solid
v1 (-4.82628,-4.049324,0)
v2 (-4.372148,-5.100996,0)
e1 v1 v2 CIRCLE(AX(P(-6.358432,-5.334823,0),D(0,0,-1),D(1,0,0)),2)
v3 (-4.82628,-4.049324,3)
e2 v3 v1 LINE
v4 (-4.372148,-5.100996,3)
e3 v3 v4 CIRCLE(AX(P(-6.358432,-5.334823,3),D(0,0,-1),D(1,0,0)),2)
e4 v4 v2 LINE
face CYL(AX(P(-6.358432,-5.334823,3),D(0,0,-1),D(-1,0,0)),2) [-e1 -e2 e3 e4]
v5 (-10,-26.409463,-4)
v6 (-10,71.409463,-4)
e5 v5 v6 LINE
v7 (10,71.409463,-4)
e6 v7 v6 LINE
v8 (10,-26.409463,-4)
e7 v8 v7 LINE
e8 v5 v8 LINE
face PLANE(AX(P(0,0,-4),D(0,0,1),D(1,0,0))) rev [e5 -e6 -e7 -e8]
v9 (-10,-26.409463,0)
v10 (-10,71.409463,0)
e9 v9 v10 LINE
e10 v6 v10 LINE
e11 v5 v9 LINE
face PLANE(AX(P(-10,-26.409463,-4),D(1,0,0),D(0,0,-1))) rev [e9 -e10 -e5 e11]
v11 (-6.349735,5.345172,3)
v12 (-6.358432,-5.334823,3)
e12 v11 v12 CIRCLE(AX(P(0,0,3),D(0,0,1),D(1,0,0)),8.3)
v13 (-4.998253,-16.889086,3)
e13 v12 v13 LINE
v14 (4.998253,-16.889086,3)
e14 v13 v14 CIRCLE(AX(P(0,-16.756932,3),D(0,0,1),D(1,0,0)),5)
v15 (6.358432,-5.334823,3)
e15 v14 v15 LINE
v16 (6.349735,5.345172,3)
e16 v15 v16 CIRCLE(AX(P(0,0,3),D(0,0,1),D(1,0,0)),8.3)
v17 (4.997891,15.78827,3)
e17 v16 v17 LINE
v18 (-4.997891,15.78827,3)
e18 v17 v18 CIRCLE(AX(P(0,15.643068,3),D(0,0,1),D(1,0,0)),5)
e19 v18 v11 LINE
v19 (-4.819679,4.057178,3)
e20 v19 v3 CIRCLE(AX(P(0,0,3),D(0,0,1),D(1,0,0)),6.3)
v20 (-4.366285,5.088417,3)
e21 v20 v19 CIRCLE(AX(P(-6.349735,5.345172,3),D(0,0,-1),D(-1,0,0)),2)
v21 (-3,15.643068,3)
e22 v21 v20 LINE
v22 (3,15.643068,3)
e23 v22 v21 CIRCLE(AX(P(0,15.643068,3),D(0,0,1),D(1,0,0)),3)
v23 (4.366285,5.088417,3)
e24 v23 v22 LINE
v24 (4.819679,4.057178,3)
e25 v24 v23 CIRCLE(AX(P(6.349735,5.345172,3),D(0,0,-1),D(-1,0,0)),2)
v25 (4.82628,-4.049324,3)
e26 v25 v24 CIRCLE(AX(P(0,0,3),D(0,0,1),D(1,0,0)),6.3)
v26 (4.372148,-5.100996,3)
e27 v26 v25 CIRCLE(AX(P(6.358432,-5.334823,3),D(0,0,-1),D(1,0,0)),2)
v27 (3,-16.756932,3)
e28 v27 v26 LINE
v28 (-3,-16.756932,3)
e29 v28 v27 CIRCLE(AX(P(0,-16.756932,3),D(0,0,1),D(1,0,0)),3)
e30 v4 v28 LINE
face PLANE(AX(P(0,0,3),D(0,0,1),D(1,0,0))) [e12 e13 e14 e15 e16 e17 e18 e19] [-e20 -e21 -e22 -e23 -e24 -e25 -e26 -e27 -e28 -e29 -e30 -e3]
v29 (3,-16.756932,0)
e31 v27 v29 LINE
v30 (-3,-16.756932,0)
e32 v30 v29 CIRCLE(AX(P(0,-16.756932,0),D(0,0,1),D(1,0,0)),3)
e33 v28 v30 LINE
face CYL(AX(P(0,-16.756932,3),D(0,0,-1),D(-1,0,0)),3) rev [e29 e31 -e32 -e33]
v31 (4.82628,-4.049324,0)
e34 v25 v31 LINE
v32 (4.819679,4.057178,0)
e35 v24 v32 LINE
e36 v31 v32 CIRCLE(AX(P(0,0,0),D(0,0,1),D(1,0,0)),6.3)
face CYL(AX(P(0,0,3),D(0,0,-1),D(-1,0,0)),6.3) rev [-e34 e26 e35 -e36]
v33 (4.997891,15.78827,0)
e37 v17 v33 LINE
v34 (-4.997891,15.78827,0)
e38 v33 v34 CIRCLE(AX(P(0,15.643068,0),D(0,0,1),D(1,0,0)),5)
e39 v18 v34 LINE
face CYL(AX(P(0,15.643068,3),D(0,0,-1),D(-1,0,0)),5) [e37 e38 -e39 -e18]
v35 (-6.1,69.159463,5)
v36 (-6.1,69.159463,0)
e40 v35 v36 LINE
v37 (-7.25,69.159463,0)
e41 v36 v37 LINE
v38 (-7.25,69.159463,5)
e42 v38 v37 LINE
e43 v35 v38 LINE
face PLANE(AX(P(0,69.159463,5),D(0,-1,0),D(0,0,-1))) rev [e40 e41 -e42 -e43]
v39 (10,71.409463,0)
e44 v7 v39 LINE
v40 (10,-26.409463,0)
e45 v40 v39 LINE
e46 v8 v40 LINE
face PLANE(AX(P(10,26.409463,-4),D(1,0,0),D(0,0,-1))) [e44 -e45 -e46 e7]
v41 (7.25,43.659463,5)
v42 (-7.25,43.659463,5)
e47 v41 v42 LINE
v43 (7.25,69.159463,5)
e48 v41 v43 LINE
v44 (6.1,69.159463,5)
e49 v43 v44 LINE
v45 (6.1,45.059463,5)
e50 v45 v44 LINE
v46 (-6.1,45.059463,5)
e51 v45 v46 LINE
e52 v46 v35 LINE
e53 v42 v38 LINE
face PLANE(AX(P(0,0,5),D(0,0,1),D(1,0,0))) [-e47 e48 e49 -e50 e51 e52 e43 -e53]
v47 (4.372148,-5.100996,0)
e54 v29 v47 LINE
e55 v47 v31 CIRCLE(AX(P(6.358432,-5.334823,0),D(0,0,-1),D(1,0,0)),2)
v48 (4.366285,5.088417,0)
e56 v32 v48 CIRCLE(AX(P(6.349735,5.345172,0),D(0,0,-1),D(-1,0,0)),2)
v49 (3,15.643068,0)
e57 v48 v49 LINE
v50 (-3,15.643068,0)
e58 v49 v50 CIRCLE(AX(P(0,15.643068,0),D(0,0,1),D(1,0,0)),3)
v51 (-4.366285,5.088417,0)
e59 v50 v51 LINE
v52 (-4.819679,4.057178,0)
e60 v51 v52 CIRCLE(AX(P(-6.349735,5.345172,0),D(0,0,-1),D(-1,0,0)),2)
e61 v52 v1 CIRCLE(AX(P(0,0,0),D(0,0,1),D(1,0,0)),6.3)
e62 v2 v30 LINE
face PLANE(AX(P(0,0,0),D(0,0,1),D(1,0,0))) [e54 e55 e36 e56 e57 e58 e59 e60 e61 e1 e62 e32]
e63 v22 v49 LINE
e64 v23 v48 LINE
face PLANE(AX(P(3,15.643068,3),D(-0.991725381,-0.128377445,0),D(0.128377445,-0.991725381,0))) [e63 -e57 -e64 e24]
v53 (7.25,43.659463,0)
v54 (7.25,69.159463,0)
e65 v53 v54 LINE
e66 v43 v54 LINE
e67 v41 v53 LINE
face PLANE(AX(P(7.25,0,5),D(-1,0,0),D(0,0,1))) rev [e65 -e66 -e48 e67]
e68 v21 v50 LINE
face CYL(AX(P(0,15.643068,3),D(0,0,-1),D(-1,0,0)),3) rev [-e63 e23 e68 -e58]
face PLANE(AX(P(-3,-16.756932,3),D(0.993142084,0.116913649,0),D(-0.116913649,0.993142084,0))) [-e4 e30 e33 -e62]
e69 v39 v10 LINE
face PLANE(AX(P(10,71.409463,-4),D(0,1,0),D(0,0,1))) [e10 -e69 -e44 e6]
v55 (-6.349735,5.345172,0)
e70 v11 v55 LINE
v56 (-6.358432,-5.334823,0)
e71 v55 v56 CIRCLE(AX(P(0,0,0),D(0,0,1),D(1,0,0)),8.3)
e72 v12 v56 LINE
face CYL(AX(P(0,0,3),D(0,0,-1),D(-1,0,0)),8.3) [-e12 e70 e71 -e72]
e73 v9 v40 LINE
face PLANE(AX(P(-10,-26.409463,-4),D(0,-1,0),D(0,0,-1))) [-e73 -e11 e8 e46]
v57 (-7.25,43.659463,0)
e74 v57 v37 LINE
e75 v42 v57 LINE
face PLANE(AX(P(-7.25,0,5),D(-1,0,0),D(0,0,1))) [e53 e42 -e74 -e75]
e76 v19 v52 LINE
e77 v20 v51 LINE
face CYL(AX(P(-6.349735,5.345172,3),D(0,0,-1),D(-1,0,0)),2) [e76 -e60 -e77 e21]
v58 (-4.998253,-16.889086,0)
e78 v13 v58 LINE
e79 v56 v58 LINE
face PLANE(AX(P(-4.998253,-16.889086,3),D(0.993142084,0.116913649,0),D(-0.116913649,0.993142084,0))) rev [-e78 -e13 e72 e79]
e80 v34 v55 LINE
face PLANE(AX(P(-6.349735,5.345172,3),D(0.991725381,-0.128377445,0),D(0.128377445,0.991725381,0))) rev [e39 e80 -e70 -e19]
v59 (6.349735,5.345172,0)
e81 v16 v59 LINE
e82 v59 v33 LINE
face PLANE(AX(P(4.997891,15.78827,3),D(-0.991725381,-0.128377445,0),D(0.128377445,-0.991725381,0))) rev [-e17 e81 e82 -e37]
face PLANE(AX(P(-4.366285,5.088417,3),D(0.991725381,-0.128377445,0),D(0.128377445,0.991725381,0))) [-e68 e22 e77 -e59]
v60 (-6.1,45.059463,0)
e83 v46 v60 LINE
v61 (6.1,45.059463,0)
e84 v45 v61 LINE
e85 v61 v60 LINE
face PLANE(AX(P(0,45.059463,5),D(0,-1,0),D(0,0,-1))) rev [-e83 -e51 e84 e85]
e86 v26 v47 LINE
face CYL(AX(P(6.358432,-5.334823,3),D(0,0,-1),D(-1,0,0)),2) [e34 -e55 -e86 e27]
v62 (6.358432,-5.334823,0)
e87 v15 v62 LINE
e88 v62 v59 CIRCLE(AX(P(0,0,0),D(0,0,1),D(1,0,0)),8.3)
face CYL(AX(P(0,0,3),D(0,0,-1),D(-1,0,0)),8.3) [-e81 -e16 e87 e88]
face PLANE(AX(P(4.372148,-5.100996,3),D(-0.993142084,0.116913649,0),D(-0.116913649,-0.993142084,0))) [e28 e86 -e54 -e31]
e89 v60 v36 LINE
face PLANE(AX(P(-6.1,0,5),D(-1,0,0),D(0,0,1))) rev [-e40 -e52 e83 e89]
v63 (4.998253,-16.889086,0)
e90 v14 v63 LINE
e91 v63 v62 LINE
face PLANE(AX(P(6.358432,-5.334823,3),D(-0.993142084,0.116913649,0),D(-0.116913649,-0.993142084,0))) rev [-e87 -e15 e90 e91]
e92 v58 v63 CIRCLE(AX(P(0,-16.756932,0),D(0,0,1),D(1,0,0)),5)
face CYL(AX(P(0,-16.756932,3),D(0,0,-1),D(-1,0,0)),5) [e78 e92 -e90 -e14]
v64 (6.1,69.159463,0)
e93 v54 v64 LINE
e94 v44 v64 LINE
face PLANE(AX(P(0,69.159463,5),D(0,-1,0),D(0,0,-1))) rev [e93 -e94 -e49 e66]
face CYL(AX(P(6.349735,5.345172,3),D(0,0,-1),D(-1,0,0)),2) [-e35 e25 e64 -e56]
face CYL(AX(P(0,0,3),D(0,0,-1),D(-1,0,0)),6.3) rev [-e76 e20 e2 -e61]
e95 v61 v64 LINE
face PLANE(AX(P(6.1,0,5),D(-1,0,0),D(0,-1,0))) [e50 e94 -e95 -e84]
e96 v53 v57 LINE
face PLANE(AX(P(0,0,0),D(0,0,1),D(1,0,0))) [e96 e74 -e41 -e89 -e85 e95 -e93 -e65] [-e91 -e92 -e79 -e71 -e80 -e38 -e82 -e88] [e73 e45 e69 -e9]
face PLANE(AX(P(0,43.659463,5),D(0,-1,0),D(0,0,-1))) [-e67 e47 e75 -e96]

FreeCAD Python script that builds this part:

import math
import FreeCAD as App
import Part
import Sketcher
from FreeCAD import Vector
Q = App.Units.Quantity

doc = App.newDocument("Part")
body = doc.addObject("PartDesign::Body", "Body")

# Sketch on XY plane
sketch1 = doc.addObject("Sketcher::SketchObject", "Sketch")
body.addObject(sketch1)
sketch1.AttachmentSupport = (doc.XY_Plane, [""])
sketch1.MapMode = "FlatFace"
sketch1.addGeometry([
    Part.LineSegment(Vector(-4.997891, 15.78827, 0), Vector(-6.349735, 5.345172, 0)),  # 0
    Part.ArcOfCircle(Part.Circle(Vector(0, 0, 0), Vector(0, 0, 1), 8.3), math.radians(139.909516), math.radians(219.997172)),  # 1
    Part.LineSegment(Vector(-6.358432, -5.334823, 0), Vector(-4.998253, -16.889086, 0)),  # 2
    Part.ArcOfCircle(Part.Circle(Vector(0, -16.756932, 0), Vector(0, 0, 1), 5), math.radians(-178.485448), math.radians(-1.514552)),  # 3
    Part.LineSegment(Vector(4.998253, -16.889086, 0), Vector(6.358432, -5.334823, 0)),  # 4
    Part.ArcOfCircle(Part.Circle(Vector(0, 0, 0), Vector(0, 0, 1), 8.3), math.radians(-39.997172), math.radians(40.090484)),  # 5
    Part.LineSegment(Vector(6.349735, 5.345172, 0), Vector(4.997891, 15.78827, 0)),  # 6
    Part.ArcOfCircle(Part.Circle(Vector(0, 15.643068, 0), Vector(0, 0, 1), 5), math.radians(1.664119), math.radians(178.335881)),  # 7
    Part.LineSegment(Vector(-4.366285, 5.088417, 0), Vector(-3, 15.643068, 0)),  # 8
    Part.ArcOfCircle(Part.Circle(Vector(0, 15.643068, 0), Vector(0, 0, 1), 3), math.radians(0), math.radians(180)),  # 9
    Part.LineSegment(Vector(3, 15.643068, 0), Vector(4.366285, 5.088417, 0)),  # 10
    Part.ArcOfCircle(Part.Circle(Vector(6.349735, 5.345172, 0), Vector(0, 0, 1), 2), math.radians(-172.624159), math.radians(-139.909516)),  # 11
    Part.ArcOfCircle(Part.Circle(Vector(0, 0, 0), Vector(0, 0, 1), 6.3), math.radians(-39.997172), math.radians(40.090484)),  # 12
    Part.ArcOfCircle(Part.Circle(Vector(6.358432, -5.334823, 0), Vector(0, 0, 1), 2), math.radians(140.002828), math.radians(173.285986)),  # 13
    Part.LineSegment(Vector(4.372148, -5.100996, 0), Vector(3, -16.756932, 0)),  # 14
    Part.ArcOfCircle(Part.Circle(Vector(0, -16.756932, 0), Vector(0, 0, 1), 3), math.radians(180), math.radians(360)),  # 15
    Part.LineSegment(Vector(-3, -16.756932, 0), Vector(-4.372148, -5.100996, 0)),  # 16
    Part.ArcOfCircle(Part.Circle(Vector(-6.358432, -5.334823, 0), Vector(0, 0, 1), 2), math.radians(6.714014), math.radians(39.997172)),  # 17
    Part.ArcOfCircle(Part.Circle(Vector(0, 0, 0), Vector(0, 0, 1), 6.3), math.radians(139.909516), math.radians(219.997172)),  # 18
    Part.ArcOfCircle(Part.Circle(Vector(-6.349735, 5.345172, 0), Vector(0, 0, 1), 2), math.radians(-40.090484), math.radians(-7.375841)),  # 19
], False)
sketch1.addConstraint([
    Sketcher.Constraint("Coincident", 0, 2, 1, 1),
    Sketcher.Constraint("Coincident", 1, 2, 2, 1),
    Sketcher.Constraint("Coincident", 2, 2, 3, 1),
    Sketcher.Constraint("Coincident", 3, 2, 4, 1),
    Sketcher.Constraint("Coincident", 4, 2, 5, 1),
    Sketcher.Constraint("Coincident", 5, 2, 6, 1),
    Sketcher.Constraint("Coincident", 6, 2, 7, 1),
    Sketcher.Constraint("Coincident", 7, 2, 0, 1),
    Sketcher.Constraint("Coincident", 8, 2, 9, 2),
    Sketcher.Constraint("Coincident", 9, 1, 10, 1),
    Sketcher.Constraint("Tangent", 10, 2, 11, 1),
    Sketcher.Constraint("Tangent", 11, 2, 12, 2),
    Sketcher.Constraint("Tangent", 12, 1, 13, 1),
    Sketcher.Constraint("Tangent", 13, 2, 14, 1),
    Sketcher.Constraint("Coincident", 14, 2, 15, 2),
    Sketcher.Constraint("Coincident", 15, 1, 16, 1),
    Sketcher.Constraint("Tangent", 16, 2, 17, 1),
    Sketcher.Constraint("Tangent", 17, 2, 18, 2),
    Sketcher.Constraint("Tangent", 18, 1, 19, 1),
    Sketcher.Constraint("Tangent", 19, 2, 8, 1),
    Sketcher.Constraint("Coincident", 1, 3, -1, 1),
    Sketcher.Constraint("Coincident", 5, 3, -1, 1),
    Sketcher.Constraint("Coincident", 12, 3, -1, 1),
    Sketcher.Constraint("Coincident", 18, 3, -1, 1),
    Sketcher.Constraint("Coincident", 9, 3, 7, 3),
    Sketcher.Constraint("Coincident", 15, 3, 3, 3),
    Sketcher.Constraint("Coincident", 0, 2, 19, 3),
    Sketcher.Constraint("Coincident", 1, 2, 17, 3),
    Sketcher.Constraint("Coincident", 4, 2, 13, 3),
    Sketcher.Constraint("Coincident", 5, 2, 11, 3),
    Sketcher.Constraint("Equal", 1, 5),
    Sketcher.Constraint("Equal", 3, 7),
    Sketcher.Constraint("Equal", 9, 15),
    Sketcher.Constraint("Equal", 13, 17),
    Sketcher.Constraint("Symmetric", 2, 2, 3, 2, -2),
    Sketcher.Constraint("Symmetric", 6, 2, 7, 2, -2),
    Sketcher.Constraint("Symmetric", 13, 2, 16, 2, -2),
    Sketcher.Constraint("Symmetric", 10, 2, 19, 2, -2),
    Sketcher.Constraint("Parallel", 0, 8),
    Sketcher.Constraint("Parallel", 4, 14),
    Sketcher.Constraint("Horizontal", 9, 3, 8, 2),
    Sketcher.Constraint("Horizontal", 15, 3, 14, 2),
    Sketcher.Constraint("Radius", 3, Q("5 mm")),
    Sketcher.Constraint("Radius", 9, Q("3 mm")),
    Sketcher.Constraint("Radius", 11, Q("2 mm")),
    Sketcher.Constraint("Radius", 1, Q("8.3 mm")),
    Sketcher.Constraint("DistanceY", 3, 3, 7, 3, Q("32.4 mm")),
    Sketcher.Constraint("DistanceY", 7, 3, 6, 2, Q("0.145201 mm")),
    Sketcher.Constraint("DistanceY", 4, 2, 12, 1, Q("1.2855 mm")),
    Sketcher.Constraint("Distance", 0, Q("10.530232 mm")),
])
pad1 = doc.addObject("PartDesign::Pad", "Pad")
body.addObject(pad1)
pad1.Profile = sketch1
pad1.Length = 3

# Sketch on XY plane
sketch2 = doc.addObject("Sketcher::SketchObject", "Sketch001")
body.addObject(sketch2)
sketch2.AttachmentSupport = (doc.XY_Plane, [""])
sketch2.MapMode = "FlatFace"
sketch2.addGeometry([
    Part.LineSegment(Vector(10, -26.409463, 0), Vector(-10, -26.409463, 0)),
    Part.LineSegment(Vector(-10, -26.409463, 0), Vector(-10, 71.409463, 0)),
    Part.LineSegment(Vector(-10, 71.409463, 0), Vector(10, 71.409463, 0)),
    Part.LineSegment(Vector(10, 71.409463, 0), Vector(10, -26.409463, 0)),
], False)
sketch2.addConstraint([
    Sketcher.Constraint("Coincident", 0, 2, 1, 1),
    Sketcher.Constraint("Coincident", 1, 2, 2, 1),
    Sketcher.Constraint("Coincident", 2, 2, 3, 1),
    Sketcher.Constraint("Coincident", 3, 2, 0, 1),
    Sketcher.Constraint("Horizontal", 0),
    Sketcher.Constraint("Vertical", 1),
    Sketcher.Constraint("Horizontal", 2),
    Sketcher.Constraint("Vertical", 3),
    Sketcher.Constraint("DistanceX", 0, 2, 0, 1, Q("20 mm")),
    Sketcher.Constraint("DistanceX", 0, 2, -1, 1, Q("10 mm")),
    Sketcher.Constraint("DistanceY", 1, 1, 1, 2, Q("97.818926 mm")),
    Sketcher.Constraint("DistanceY", 0, 2, -1, 1, Q("26.409463 mm")),
])
pad2 = doc.addObject("PartDesign::Pad", "Pad001")
body.addObject(pad2)
pad2.Profile = sketch2
pad2.Length = 4
pad2.Reversed = True

# Sketch on XY plane
sketch3 = doc.addObject("Sketcher::SketchObject", "Sketch002")
body.addObject(sketch3)
sketch3.AttachmentSupport = (doc.XY_Plane, [""])
sketch3.MapMode = "FlatFace"
sketch3.addGeometry([
    Part.LineSegment(Vector(7.25, 69.159463, 0), Vector(6.1, 69.159463, 0)),  # 0
    Part.LineSegment(Vector(6.1, 69.159463, 0), Vector(6.1, 45.059463, 0)),  # 1
    Part.LineSegment(Vector(6.1, 45.059463, 0), Vector(-6.1, 45.059463, 0)),  # 2
    Part.LineSegment(Vector(-6.1, 45.059463, 0), Vector(-6.1, 69.159463, 0)),  # 3
    Part.LineSegment(Vector(-6.1, 69.159463, 0), Vector(-7.25, 69.159463, 0)),  # 4
    Part.LineSegment(Vector(-7.25, 69.159463, 0), Vector(-7.25, 43.659463, 0)),  # 5
    Part.LineSegment(Vector(-7.25, 43.659463, 0), Vector(7.25, 43.659463, 0)),  # 6
    Part.LineSegment(Vector(7.25, 43.659463, 0), Vector(7.25, 69.159463, 0)),  # 7
], False)
sketch3.addConstraint([
    Sketcher.Constraint("Coincident", 0, 2, 1, 1),
    Sketcher.Constraint("Coincident", 1, 2, 2, 1),
    Sketcher.Constraint("Coincident", 2, 2, 3, 1),
    Sketcher.Constraint("Coincident", 3, 2, 4, 1),
    Sketcher.Constraint("Coincident", 4, 2, 5, 1),
    Sketcher.Constraint("Coincident", 5, 2, 6, 1),
    Sketcher.Constraint("Coincident", 6, 2, 7, 1),
    Sketcher.Constraint("Coincident", 7, 2, 0, 1),
    Sketcher.Constraint("Horizontal", 0),
    Sketcher.Constraint("Vertical", 1),
    Sketcher.Constraint("Horizontal", 2),
    Sketcher.Constraint("Vertical", 3),
    Sketcher.Constraint("Horizontal", 4),
    Sketcher.Constraint("Vertical", 5),
    Sketcher.Constraint("Horizontal", 6),
    Sketcher.Constraint("Vertical", 7),
    Sketcher.Constraint("Symmetric", 0, 2, 3, 2, -2),
    Sketcher.Constraint("Equal", 0, 4),
    Sketcher.Constraint("DistanceX", 2, 2, 2, 1, Q("12.2 mm")),
    Sketcher.Constraint("DistanceX", 6, 1, 6, 2, Q("14.5 mm")),
    Sketcher.Constraint("DistanceY", 1, 2, 1, 1, Q("24.1 mm")),
    Sketcher.Constraint("DistanceY", 5, 2, 5, 1, Q("25.5 mm")),
    Sketcher.Constraint("DistanceY", -1, 1, 0, 2, Q("69.159463 mm")),
])
pad3 = doc.addObject("PartDesign::Pad", "Pad002")
body.addObject(pad3)
pad3.Profile = sketch3
pad3.Length = 5

doc.recompute()
